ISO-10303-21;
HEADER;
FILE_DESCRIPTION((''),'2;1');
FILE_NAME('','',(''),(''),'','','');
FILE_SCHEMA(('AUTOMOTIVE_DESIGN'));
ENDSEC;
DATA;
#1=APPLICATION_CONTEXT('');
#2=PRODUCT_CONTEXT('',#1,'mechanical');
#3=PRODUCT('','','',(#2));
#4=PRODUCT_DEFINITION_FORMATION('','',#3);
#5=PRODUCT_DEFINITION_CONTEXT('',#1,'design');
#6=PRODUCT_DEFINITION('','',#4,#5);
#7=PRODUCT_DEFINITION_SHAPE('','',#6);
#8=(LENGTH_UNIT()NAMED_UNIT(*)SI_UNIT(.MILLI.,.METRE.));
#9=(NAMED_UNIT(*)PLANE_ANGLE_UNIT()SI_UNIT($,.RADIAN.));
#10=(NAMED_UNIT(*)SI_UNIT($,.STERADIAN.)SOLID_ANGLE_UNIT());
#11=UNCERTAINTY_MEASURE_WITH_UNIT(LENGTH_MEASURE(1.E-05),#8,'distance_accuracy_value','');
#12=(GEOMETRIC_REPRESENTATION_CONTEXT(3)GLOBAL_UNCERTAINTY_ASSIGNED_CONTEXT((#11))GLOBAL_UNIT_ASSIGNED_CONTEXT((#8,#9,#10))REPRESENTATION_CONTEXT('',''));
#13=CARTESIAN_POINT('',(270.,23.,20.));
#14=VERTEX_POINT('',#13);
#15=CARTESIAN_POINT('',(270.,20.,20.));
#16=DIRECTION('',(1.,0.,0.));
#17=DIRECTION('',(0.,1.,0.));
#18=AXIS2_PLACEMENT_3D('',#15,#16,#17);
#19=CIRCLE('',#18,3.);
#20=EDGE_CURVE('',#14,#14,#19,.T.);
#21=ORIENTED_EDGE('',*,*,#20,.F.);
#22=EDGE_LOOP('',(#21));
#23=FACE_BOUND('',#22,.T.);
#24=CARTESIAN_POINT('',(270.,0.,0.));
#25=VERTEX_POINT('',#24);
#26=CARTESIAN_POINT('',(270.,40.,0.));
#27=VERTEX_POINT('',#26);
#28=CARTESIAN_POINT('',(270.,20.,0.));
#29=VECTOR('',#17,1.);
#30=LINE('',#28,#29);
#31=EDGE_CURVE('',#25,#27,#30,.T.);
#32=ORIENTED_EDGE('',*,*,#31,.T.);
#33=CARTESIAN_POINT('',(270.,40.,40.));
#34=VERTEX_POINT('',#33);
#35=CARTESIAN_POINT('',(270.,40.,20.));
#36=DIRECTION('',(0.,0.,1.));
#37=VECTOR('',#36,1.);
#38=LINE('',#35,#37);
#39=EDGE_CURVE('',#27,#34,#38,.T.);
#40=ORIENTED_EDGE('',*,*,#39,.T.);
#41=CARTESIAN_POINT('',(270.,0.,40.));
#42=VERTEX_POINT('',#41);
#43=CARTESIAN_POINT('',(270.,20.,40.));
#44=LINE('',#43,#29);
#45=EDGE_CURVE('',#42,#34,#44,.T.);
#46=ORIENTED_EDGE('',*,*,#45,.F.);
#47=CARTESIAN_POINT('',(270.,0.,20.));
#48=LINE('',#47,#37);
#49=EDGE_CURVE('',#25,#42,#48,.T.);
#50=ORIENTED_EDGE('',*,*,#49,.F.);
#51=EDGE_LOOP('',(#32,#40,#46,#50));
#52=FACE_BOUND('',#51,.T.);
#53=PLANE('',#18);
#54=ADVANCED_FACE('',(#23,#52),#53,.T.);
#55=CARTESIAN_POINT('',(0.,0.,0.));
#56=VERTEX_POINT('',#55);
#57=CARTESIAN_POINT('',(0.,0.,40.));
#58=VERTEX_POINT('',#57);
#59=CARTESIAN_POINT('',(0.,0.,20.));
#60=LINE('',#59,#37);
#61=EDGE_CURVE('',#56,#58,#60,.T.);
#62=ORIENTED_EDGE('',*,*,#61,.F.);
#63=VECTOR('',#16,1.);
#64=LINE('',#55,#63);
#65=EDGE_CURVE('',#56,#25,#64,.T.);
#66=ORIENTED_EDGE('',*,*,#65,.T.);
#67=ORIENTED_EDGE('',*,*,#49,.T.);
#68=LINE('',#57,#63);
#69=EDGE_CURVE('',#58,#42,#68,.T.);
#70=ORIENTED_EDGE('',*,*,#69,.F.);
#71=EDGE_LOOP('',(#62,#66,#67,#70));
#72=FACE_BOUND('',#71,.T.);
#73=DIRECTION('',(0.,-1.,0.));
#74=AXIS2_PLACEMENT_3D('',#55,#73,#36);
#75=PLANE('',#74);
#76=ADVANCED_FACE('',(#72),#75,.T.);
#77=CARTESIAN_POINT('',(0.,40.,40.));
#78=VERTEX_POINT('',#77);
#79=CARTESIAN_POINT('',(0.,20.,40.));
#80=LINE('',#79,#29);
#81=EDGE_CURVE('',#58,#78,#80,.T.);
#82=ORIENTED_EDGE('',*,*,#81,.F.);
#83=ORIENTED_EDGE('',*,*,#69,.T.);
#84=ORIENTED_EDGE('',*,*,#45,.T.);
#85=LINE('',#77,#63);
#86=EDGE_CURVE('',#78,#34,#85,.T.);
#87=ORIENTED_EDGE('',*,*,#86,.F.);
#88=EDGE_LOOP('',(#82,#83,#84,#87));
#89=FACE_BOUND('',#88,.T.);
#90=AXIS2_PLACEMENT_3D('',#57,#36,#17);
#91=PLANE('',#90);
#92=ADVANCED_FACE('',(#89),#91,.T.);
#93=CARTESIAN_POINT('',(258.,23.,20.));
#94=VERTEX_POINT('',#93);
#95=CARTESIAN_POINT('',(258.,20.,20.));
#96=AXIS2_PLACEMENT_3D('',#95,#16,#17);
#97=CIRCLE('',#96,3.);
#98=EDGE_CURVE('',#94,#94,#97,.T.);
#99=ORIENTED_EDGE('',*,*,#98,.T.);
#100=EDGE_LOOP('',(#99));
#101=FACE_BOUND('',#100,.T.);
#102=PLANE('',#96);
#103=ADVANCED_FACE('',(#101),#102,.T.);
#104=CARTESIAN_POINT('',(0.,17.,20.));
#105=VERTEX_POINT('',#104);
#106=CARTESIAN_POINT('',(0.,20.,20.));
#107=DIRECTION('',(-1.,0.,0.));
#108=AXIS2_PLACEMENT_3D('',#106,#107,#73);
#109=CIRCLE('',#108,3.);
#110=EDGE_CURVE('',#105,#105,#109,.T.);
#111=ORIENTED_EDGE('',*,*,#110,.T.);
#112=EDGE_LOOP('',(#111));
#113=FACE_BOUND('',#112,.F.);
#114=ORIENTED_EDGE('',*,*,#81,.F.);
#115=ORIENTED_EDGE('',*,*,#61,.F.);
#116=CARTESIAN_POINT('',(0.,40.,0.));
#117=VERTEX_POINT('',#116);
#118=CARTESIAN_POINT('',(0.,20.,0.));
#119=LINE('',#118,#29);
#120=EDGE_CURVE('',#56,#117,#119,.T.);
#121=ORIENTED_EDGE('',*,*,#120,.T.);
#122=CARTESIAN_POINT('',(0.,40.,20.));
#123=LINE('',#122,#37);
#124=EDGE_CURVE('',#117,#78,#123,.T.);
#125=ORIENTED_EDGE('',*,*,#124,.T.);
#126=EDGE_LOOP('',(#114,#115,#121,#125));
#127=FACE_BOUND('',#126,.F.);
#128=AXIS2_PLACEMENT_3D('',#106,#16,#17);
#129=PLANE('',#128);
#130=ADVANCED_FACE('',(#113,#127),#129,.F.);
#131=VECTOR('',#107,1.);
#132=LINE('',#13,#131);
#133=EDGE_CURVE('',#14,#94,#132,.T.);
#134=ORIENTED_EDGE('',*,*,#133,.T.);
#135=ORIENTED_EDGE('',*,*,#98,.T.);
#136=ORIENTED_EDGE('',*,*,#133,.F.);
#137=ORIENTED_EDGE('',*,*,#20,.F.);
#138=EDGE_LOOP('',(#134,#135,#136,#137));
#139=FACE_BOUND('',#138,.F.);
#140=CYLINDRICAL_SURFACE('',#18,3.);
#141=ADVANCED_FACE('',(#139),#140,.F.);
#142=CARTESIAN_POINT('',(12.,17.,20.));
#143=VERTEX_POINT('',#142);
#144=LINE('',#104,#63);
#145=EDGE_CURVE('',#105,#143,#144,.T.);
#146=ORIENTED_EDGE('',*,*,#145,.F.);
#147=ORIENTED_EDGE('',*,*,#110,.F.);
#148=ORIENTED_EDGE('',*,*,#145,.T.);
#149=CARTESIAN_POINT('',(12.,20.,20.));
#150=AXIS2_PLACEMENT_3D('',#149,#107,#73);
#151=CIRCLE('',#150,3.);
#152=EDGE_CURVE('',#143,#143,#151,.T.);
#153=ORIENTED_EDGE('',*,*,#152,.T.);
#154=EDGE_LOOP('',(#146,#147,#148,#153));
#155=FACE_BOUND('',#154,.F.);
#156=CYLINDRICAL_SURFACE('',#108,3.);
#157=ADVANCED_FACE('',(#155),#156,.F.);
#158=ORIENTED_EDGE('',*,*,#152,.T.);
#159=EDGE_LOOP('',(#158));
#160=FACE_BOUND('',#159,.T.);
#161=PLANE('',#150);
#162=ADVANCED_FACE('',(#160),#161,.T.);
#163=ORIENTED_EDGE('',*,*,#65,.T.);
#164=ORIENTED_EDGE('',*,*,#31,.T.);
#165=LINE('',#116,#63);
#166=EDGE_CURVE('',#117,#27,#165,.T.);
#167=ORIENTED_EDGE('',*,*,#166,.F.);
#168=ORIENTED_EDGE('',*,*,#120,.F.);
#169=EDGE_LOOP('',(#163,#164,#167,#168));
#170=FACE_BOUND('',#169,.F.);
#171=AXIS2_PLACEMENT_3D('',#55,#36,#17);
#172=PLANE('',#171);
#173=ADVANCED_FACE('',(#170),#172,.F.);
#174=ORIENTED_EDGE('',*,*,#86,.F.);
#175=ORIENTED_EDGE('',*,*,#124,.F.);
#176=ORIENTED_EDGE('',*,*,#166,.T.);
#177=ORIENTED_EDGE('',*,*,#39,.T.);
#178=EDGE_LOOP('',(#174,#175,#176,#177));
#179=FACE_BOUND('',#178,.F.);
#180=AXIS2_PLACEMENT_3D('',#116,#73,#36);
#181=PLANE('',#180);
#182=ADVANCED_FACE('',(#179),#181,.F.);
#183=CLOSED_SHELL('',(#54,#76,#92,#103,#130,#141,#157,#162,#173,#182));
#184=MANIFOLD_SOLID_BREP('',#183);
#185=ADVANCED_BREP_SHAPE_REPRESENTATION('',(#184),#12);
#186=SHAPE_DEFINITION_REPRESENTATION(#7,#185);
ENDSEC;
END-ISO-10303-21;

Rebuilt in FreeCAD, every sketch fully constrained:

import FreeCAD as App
import Part
import Sketcher
Q = App.Units.Quantity

doc = App.newDocument("Part")
params = doc.addObject("Spreadsheet::Sheet", "Params")
for row, (alias, value) in enumerate([
    ("sketch1_width", "40 mm"),
    ("pad1_length", "270 mm"),
    ("sketch2_diameter", "6 mm"),
    ("pocket1_length", "12 mm"),
    ("sketch3_diameter", "6 mm"),
    ("pocket2_length", "12 mm"),
], start=1):
    params.set(f"A{row}", alias)
    params.set(f"B{row}", "=" + value)
    params.setAlias(f"B{row}", alias)

body = doc.addObject("PartDesign::Body", "Body")

sketch1 = doc.addObject("Sketcher::SketchObject", "Sketch")
body.addObject(sketch1)
sketch1.AttachmentSupport = (doc.YZ_Plane, [""])
sketch1.MapMode = "FlatFace"
sketch1.addGeometry([
    Part.LineSegment(App.Vector(0, 40, 0), App.Vector(0, 0, 0)),
    Part.LineSegment(App.Vector(0, 0, 0), App.Vector(40, 0, 0)),
    Part.LineSegment(App.Vector(40, 0, 0), App.Vector(40, 40, 0)),
    Part.LineSegment(App.Vector(40, 40, 0), App.Vector(0, 40, 0)),
], False)
sketch1.addConstraint([
    Sketcher.Constraint("Coincident", 0, 2, 1, 1),
    Sketcher.Constraint("Coincident", 1, 2, 2, 1),
    Sketcher.Constraint("Coincident", 2, 2, 3, 1),
    Sketcher.Constraint("Coincident", 3, 2, 0, 1),
    Sketcher.Constraint("Vertical", 0),
    Sketcher.Constraint("Horizontal", 1),
    Sketcher.Constraint("Vertical", 2),
    Sketcher.Constraint("Horizontal", 3),
    Sketcher.Constraint("Coincident", 0, 2, -1, 1),
    Sketcher.Constraint("Equal", 3, 0),
    Sketcher.Constraint("DistanceX", 1, 1, 1, 2, Q("40 mm")),
])
sketch1.setExpression("Constraints[10]", "Params.sketch1_width")
pad1 = doc.addObject("PartDesign::Pad", "Pad")
body.addObject(pad1)
pad1.Profile = sketch1
pad1.setExpression("Length", "Params.pad1_length")

sketch2 = doc.addObject("Sketcher::SketchObject", "Sketch001")
body.addObject(sketch2)
sketch2.AttachmentSupport = (doc.YZ_Plane, [""])
sketch2.MapMode = "FlatFace"
sketch2.AttachmentOffset = App.Placement(App.Vector(0, 0, 270), App.Rotation())
sketch2.addGeometry(Part.Circle(App.Vector(20, 20, 0), App.Vector(0, 0, 1), 3), False)
sketch2.addConstraint([
    Sketcher.Constraint("Diameter", 0, Q("6 mm")),
    Sketcher.Constraint("DistanceX", -1, 1, 0, 3, Q("20 mm")),
    Sketcher.Constraint("DistanceY", -1, 1, 0, 3, Q("20 mm")),
])
sketch2.setExpression("Constraints[0]", "Params.sketch2_diameter")
pocket1 = doc.addObject("PartDesign::Pocket", "Pocket")
body.addObject(pocket1)
pocket1.Profile = sketch2
pocket1.setExpression("Length", "Params.pocket1_length")

sketch3 = doc.addObject("Sketcher::SketchObject", "Sketch002")
body.addObject(sketch3)
sketch3.AttachmentSupport = (doc.YZ_Plane, [""])
sketch3.MapMode = "FlatFace"
sketch3.addGeometry(Part.Circle(App.Vector(20, 20, 0), App.Vector(0, 0, 1), 3), False)
sketch3.addConstraint([
    Sketcher.Constraint("Diameter", 0, Q("6 mm")),
    Sketcher.Constraint("DistanceX", -1, 1, 0, 3, Q("20 mm")),
    Sketcher.Constraint("DistanceY", -1, 1, 0, 3, Q("20 mm")),
])
sketch3.setExpression("Constraints[0]", "Params.sketch3_diameter")
pocket2 = doc.addObject("PartDesign::Pocket", "Pocket001")
body.addObject(pocket2)
pocket2.Profile = sketch3
pocket2.setExpression("Length", "Params.pocket2_length")
pocket2.Reversed = True

doc.recompute()
